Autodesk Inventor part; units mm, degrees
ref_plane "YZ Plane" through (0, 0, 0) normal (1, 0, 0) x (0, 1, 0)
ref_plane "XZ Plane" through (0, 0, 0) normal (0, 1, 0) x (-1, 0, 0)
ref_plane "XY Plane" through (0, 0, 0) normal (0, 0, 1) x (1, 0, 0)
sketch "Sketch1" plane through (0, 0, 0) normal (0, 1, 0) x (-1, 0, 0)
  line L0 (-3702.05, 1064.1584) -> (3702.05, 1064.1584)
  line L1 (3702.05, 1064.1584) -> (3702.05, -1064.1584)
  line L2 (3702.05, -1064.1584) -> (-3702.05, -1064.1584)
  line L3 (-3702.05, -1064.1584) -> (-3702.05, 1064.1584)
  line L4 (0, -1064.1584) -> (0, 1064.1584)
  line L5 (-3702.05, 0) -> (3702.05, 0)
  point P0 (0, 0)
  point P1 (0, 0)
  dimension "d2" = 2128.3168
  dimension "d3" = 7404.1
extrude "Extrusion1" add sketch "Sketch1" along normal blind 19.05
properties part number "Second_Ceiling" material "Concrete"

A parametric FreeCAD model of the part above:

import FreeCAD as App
import Part
import Sketcher

V = App.Vector
Q = App.Units.Quantity

doc = App.newDocument("Part")
params = doc.addObject("Spreadsheet::Sheet", "Params")
for row, (alias, value) in enumerate([
    ("sketch1_width", "291.5 in"),
    ("sketch1_height", "83.792 in"),
    ("pad1_length", "0.75 in"),
], start=1):
    params.set(f"A{row}", alias)
    params.set(f"B{row}", "=" + value)
    params.setAlias(f"B{row}", alias)

body = doc.addObject("PartDesign::Body", "Body")

# Sketch on XZ plane
sketch1 = body.newObject("Sketcher::SketchObject", "Sketch")
sketch1.AttachmentSupport = (doc.getObject("XZ_Plane"), [""])
sketch1.MapMode = "FlatFace"
sketch1.addGeometry(Part.LineSegment(V(3702.05, 1064.1584, 0), V(3702.05, -1064.1584, 0)), False)
sketch1.addGeometry(Part.LineSegment(V(3702.05, -1064.1584, 0), V(-3702.05, -1064.1584, 0)), False)
sketch1.addGeometry(Part.LineSegment(V(-3702.05, -1064.1584, 0), V(-3702.05, 1064.1584, 0)), False)
sketch1.addGeometry(Part.LineSegment(V(-3702.05, 1064.1584, 0), V(3702.05, 1064.1584, 0)), False)
sketch1.addConstraint(Sketcher.Constraint("Coincident", 0, 2, 1, 1))
sketch1.addConstraint(Sketcher.Constraint("Coincident", 1, 2, 2, 1))
sketch1.addConstraint(Sketcher.Constraint("Coincident", 2, 2, 3, 1))
sketch1.addConstraint(Sketcher.Constraint("Coincident", 3, 2, 0, 1))
sketch1.addConstraint(Sketcher.Constraint("Vertical", 0))
sketch1.addConstraint(Sketcher.Constraint("Horizontal", 1))
sketch1.addConstraint(Sketcher.Constraint("Vertical", 2))
sketch1.addConstraint(Sketcher.Constraint("Horizontal", 3))
sketch1.addConstraint(Sketcher.Constraint("Symmetric", 0, 2, 2, 2, -1, 1))
sketch1.addConstraint(Sketcher.Constraint("DistanceX", 1, 2, 1, 1, Q("291.5 in")))
sketch1.addConstraint(Sketcher.Constraint("DistanceY", 0, 2, 0, 1, Q("83.792 in")))
sketch1.setExpression("Constraints[9]", "Params.sketch1_width")
sketch1.setExpression("Constraints[10]", "Params.sketch1_height")
pad1 = body.newObject("PartDesign::Pad", "Pad")
pad1.Profile = sketch1
pad1.setExpression("Length", "Params.pad1_length")
pad1.Reversed = True

doc.recompute()
